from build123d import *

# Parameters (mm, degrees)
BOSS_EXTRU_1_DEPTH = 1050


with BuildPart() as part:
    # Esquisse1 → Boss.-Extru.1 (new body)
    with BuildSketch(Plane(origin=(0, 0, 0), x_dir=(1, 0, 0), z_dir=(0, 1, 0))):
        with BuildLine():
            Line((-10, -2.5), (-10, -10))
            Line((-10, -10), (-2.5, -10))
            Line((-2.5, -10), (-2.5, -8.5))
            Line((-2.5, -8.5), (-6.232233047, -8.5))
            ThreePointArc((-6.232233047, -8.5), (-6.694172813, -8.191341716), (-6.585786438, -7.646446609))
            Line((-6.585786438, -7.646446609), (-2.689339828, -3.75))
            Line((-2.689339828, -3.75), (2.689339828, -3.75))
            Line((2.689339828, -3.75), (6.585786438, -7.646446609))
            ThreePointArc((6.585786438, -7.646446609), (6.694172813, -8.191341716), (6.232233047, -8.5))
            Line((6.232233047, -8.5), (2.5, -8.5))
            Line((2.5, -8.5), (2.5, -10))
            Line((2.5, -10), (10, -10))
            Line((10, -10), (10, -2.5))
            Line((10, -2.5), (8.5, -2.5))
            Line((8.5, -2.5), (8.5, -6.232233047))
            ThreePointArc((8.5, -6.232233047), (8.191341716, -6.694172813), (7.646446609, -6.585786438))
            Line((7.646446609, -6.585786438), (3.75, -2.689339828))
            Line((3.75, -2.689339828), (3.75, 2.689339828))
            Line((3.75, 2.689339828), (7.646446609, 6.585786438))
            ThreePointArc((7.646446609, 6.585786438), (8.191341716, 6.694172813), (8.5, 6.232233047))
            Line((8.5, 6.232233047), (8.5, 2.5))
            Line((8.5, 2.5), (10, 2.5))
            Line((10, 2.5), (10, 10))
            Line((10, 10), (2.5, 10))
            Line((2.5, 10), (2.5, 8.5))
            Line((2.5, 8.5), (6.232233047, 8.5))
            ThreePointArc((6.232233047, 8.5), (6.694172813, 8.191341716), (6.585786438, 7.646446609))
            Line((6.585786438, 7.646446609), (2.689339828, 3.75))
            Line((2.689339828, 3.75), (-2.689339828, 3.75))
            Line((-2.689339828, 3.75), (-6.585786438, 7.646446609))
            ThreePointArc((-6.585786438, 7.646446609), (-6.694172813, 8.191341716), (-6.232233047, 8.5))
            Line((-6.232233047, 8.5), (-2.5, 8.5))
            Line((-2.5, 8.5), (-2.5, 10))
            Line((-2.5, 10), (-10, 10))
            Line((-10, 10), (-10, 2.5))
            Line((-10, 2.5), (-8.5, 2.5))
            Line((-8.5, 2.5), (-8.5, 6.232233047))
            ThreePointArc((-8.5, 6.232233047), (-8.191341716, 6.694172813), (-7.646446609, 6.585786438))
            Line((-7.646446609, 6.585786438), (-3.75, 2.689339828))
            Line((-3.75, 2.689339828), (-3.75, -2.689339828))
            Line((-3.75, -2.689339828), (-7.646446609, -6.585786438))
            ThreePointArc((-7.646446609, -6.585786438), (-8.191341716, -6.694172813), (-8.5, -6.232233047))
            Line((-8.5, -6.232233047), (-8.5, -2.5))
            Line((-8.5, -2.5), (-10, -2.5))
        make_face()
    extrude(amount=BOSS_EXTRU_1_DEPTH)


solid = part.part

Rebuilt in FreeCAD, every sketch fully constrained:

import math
import FreeCAD as App
import Part
import Sketcher

V = App.Vector

doc = App.newDocument("Part")
body = doc.addObject("PartDesign::Body", "Body")

# Sketch on XZ plane
sketch1 = body.newObject("Sketcher::SketchObject", "Sketch")
sketch1.AttachmentSupport = (doc.getObject("XZ_Plane"), [""])
sketch1.MapMode = "FlatFace"
sketch1.addGeometry([
    Part.LineSegment(V(-10, 2.5, 0), V(-10, 10, 0)),  # 0
    Part.LineSegment(V(-10, 10, 0), V(-2.5, 10, 0)),  # 1
    Part.LineSegment(V(-2.5, 10, 0), V(-2.5, 8.5, 0)),  # 2
    Part.LineSegment(V(-2.5, 8.5, 0), V(-6.232233, 8.5, 0)),  # 3
    Part.ArcOfCircle(Part.Circle(V(-6.232233, 8, 0), V(0, 0, 1), 0.5), math.radians(90), math.radians(225)),  # 4
    Part.LineSegment(V(-6.585786, 7.646447, 0), V(-2.68934, 3.75, 0)),  # 5
    Part.LineSegment(V(-2.68934, 3.75, 0), V(2.68934, 3.75, 0)),  # 6
    Part.LineSegment(V(2.68934, 3.75, 0), V(6.585786, 7.646447, 0)),  # 7
    Part.ArcOfCircle(Part.Circle(V(6.232233, 8, 0), V(0, 0, 1), 0.5), math.radians(-45), math.radians(90)),  # 8
    Part.LineSegment(V(6.232233, 8.5, 0), V(2.5, 8.5, 0)),  # 9
    Part.LineSegment(V(2.5, 8.5, 0), V(2.5, 10, 0)),  # 10
    Part.LineSegment(V(2.5, 10, 0), V(10, 10, 0)),  # 11
    Part.LineSegment(V(10, 10, 0), V(10, 2.5, 0)),  # 12
    Part.LineSegment(V(10, 2.5, 0), V(8.5, 2.5, 0)),  # 13
    Part.LineSegment(V(8.5, 2.5, 0), V(8.5, 6.232233, 0)),  # 14
    Part.ArcOfCircle(Part.Circle(V(8, 6.232233, 0), V(0, 0, 1), 0.5), math.radians(0), math.radians(135)),  # 15
    Part.LineSegment(V(7.646447, 6.585786, 0), V(3.75, 2.68934, 0)),  # 16
    Part.LineSegment(V(3.75, 2.68934, 0), V(3.75, -2.68934, 0)),  # 17
    Part.LineSegment(V(3.75, -2.68934, 0), V(7.646447, -6.585786, 0)),  # 18
    Part.ArcOfCircle(Part.Circle(V(8, -6.232233, 0), V(0, 0, 1), 0.5), math.radians(-135), math.radians(0)),  # 19
    Part.LineSegment(V(8.5, -6.232233, 0), V(8.5, -2.5, 0)),  # 20
    Part.LineSegment(V(8.5, -2.5, 0), V(10, -2.5, 0)),  # 21
    Part.LineSegment(V(10, -2.5, 0), V(10, -10, 0)),  # 22
    Part.LineSegment(V(10, -10, 0), V(2.5, -10, 0)),  # 23
    Part.LineSegment(V(2.5, -10, 0), V(2.5, -8.5, 0)),  # 24
    Part.LineSegment(V(2.5, -8.5, 0), V(6.232233, -8.5, 0)),  # 25
    Part.ArcOfCircle(Part.Circle(V(6.232233, -8, 0), V(0, 0, 1), 0.5), math.radians(-90), math.radians(45)),  # 26
    Part.LineSegment(V(6.585786, -7.646447, 0), V(2.68934, -3.75, 0)),  # 27
    Part.LineSegment(V(2.68934, -3.75, 0), V(-2.68934, -3.75, 0)),  # 28
    Part.LineSegment(V(-2.68934, -3.75, 0), V(-6.585786, -7.646447, 0)),  # 29
    Part.ArcOfCircle(Part.Circle(V(-6.232233, -8, 0), V(0, 0, 1), 0.5), math.radians(135), math.radians(270)),  # 30
    Part.LineSegment(V(-6.232233, -8.5, 0), V(-2.5, -8.5, 0)),  # 31
    Part.LineSegment(V(-2.5, -8.5, 0), V(-2.5, -10, 0)),  # 32
    Part.LineSegment(V(-2.5, -10, 0), V(-10, -10, 0)),  # 33
    Part.LineSegment(V(-10, -10, 0), V(-10, -2.5, 0)),  # 34
    Part.LineSegment(V(-10, -2.5, 0), V(-8.5, -2.5, 0)),  # 35
    Part.LineSegment(V(-8.5, -2.5, 0), V(-8.5, -6.232233, 0)),  # 36
    Part.ArcOfCircle(Part.Circle(V(-8, -6.232233, 0), V(0, 0, 1), 0.5), math.radians(-180), math.radians(-45)),  # 37
    Part.LineSegment(V(-7.646447, -6.585786, 0), V(-3.75, -2.68934, 0)),  # 38
    Part.LineSegment(V(-3.75, -2.68934, 0), V(-3.75, 2.68934, 0)),  # 39
    Part.LineSegment(V(-3.75, 2.68934, 0), V(-7.646447, 6.585786, 0)),  # 40
    Part.ArcOfCircle(Part.Circle(V(-8, 6.232233, 0), V(0, 0, 1), 0.5), math.radians(45), math.radians(180)),  # 41
    Part.LineSegment(V(-8.5, 6.232233, 0), V(-8.5, 2.5, 0)),  # 42
    Part.LineSegment(V(-8.5, 2.5, 0), V(-10, 2.5, 0)),  # 43
], False)
sketch1.addConstraint([
    Sketcher.Constraint("Coincident", 0, 2, 1, 1),
    Sketcher.Constraint("Coincident", 1, 2, 2, 1),
    Sketcher.Constraint("Coincident", 2, 2, 3, 1),
    Sketcher.Constraint("Tangent", 3, 2, 4, 1),
    Sketcher.Constraint("Tangent", 4, 2, 5, 1),
    Sketcher.Constraint("Coincident", 5, 2, 6, 1),
    Sketcher.Constraint("Coincident", 6, 2, 7, 1),
    Sketcher.Constraint("Tangent", 7, 2, 8, 1),
    Sketcher.Constraint("Tangent", 8, 2, 9, 1),
    Sketcher.Constraint("Coincident", 9, 2, 10, 1),
    Sketcher.Constraint("Coincident", 10, 2, 11, 1),
    Sketcher.Constraint("Coincident", 11, 2, 12, 1),
    Sketcher.Constraint("Coincident", 12, 2, 13, 1),
    Sketcher.Constraint("Coincident", 13, 2, 14, 1),
    Sketcher.Constraint("Tangent", 14, 2, 15, 1),
    Sketcher.Constraint("Tangent", 15, 2, 16, 1),
    Sketcher.Constraint("Coincident", 16, 2, 17, 1),
    Sketcher.Constraint("Coincident", 17, 2, 18, 1),
    Sketcher.Constraint("Tangent", 18, 2, 19, 1),
    Sketcher.Constraint("Tangent", 19, 2, 20, 1),
    Sketcher.Constraint("Coincident", 20, 2, 21, 1),
    Sketcher.Constraint("Coincident", 21, 2, 22, 1),
    Sketcher.Constraint("Coincident", 22, 2, 23, 1),
    Sketcher.Constraint("Coincident", 23, 2, 24, 1),
    Sketcher.Constraint("Coincident", 24, 2, 25, 1),
    Sketcher.Constraint("Tangent", 25, 2, 26, 1),
    Sketcher.Constraint("Tangent", 26, 2, 27, 1),
    Sketcher.Constraint("Coincident", 27, 2, 28, 1),
    Sketcher.Constraint("Coincident", 28, 2, 29, 1),
    Sketcher.Constraint("Tangent", 29, 2, 30, 1),
    Sketcher.Constraint("Tangent", 30, 2, 31, 1),
    Sketcher.Constraint("Coincident", 31, 2, 32, 1),
    Sketcher.Constraint("Coincident", 32, 2, 33, 1),
    Sketcher.Constraint("Coincident", 33, 2, 34, 1),
    Sketcher.Constraint("Coincident", 34, 2, 35, 1),
    Sketcher.Constraint("Coincident", 35, 2, 36, 1),
    Sketcher.Constraint("Tangent", 36, 2, 37, 1),
    Sketcher.Constraint("Tangent", 37, 2, 38, 1),
    Sketcher.Constraint("Coincident", 38, 2, 39, 1),
    Sketcher.Constraint("Coincident", 39, 2, 40, 1),
    Sketcher.Constraint("Tangent", 40, 2, 41, 1),
    Sketcher.Constraint("Tangent", 41, 2, 42, 1),
    Sketcher.Constraint("Coincident", 42, 2, 43, 1),
    Sketcher.Constraint("Coincident", 43, 2, 0, 1),
    Sketcher.Constraint("Vertical", 0),
    Sketcher.Constraint("Horizontal", 1),
    Sketcher.Constraint("Vertical", 2),
    Sketcher.Constraint("Horizontal", 3),
    Sketcher.Constraint("Horizontal", 6),
    Sketcher.Constraint("Horizontal", 9),
    Sketcher.Constraint("Vertical", 10),
    Sketcher.Constraint("Horizontal", 11),
    Sketcher.Constraint("Vertical", 12),
    Sketcher.Constraint("Horizontal", 13),
    Sketcher.Constraint("Vertical", 14),
    Sketcher.Constraint("Vertical", 17),
    Sketcher.Constraint("Vertical", 20),
    Sketcher.Constraint("Horizontal", 21),
    Sketcher.Constraint("Vertical", 22),
    Sketcher.Constraint("Horizontal", 23),
    Sketcher.Constraint("Vertical", 24),
    Sketcher.Constraint("Horizontal", 25),
    Sketcher.Constraint("Horizontal", 28),
    Sketcher.Constraint("Horizontal", 31),
    Sketcher.Constraint("Vertical", 32),
    Sketcher.Constraint("Horizontal", 33),
    Sketcher.Constraint("Vertical", 34),
    Sketcher.Constraint("Horizontal", 35),
    Sketcher.Constraint("Vertical", 36),
    Sketcher.Constraint("Vertical", 39),
    Sketcher.Constraint("Vertical", 42),
    Sketcher.Constraint("Horizontal", 43),
    Sketcher.Constraint("Equal", 4, 8),
    Sketcher.Constraint("Equal", 8, 15),
    Sketcher.Constraint("Equal", 15, 19),
    Sketcher.Constraint("Equal", 19, 26),
    Sketcher.Constraint("Equal", 26, 30),
    Sketcher.Constraint("Equal", 30, 37),
    Sketcher.Constraint("Equal", 37, 41),
    Sketcher.Constraint("Symmetric", 4, 3, 26, 3, -1, 1),
    Sketcher.Constraint("Symmetric", 8, 3, 30, 3, -1, 1),
    Sketcher.Constraint("Symmetric", 15, 3, 37, 3, -1, 1),
    Sketcher.Constraint("Symmetric", 19, 3, 41, 3, -1, 1),
    Sketcher.Constraint("Symmetric", 0, 2, 22, 2, -1, 1),
    Sketcher.Constraint("Symmetric", 5, 2, 27, 2, -1, 1),
    Sketcher.Constraint("Symmetric", 10, 2, 32, 2, -1, 1),
    Sketcher.Constraint("Symmetric", 12, 2, 34, 2, -1, 1),
    Sketcher.Constraint("Symmetric", 16, 2, 38, 2, -1, 1),
    Sketcher.Constraint("Symmetric", 4, 3, 8, 3, -2),
    Sketcher.Constraint("Symmetric", 19, 3, 37, 3, -2),
    Sketcher.Constraint("Symmetric", 1, 2, 10, 2, -2),
    Sketcher.Constraint("Symmetric", 21, 2, 34, 2, -2),
    Sketcher.Constraint("Perpendicular", 5, 7),
    Sketcher.Constraint("Parallel", 7, 16),
    Sketcher.Constraint("Perpendicular", 16, 18),
    Sketcher.Constraint("Perpendicular", 27, 29),
    Sketcher.Constraint("Perpendicular", 38, 40),
    Sketcher.Constraint("Horizontal", 4, 2, 7, 2),
    Sketcher.Constraint("Horizontal", 13, 2, 42, 2),
    Sketcher.Constraint("Vertical", 10, 2, 23, 2),
    Sketcher.Constraint("Equal", 33, 0),
    Sketcher.Constraint("Equal", 43, 2),
    Sketcher.Constraint("Equal", 31, 14),
    Sketcher.Constraint("Equal", 28, 17),
    Sketcher.Constraint("Equal", 7, 16),
    Sketcher.Constraint("Radius", 4, 0.5),
    Sketcher.Constraint("DistanceX", 1, 1, 1, 2, 7.5),
    Sketcher.Constraint("DistanceX", 13, 2, 13, 1, 1.5),
    Sketcher.Constraint("DistanceY", -1, 1, 4, 3, 8.0),
    Sketcher.Constraint("DistanceY", -1, 1, 5, 2, 3.75),
    Sketcher.Constraint("DistanceX", 6, 1, 6, 2, 5.37868),
])
pad1 = body.newObject("PartDesign::Pad", "Pad")
pad1.Profile = sketch1
pad1.Length = 1050
pad1.Reversed = True

doc.recompute()
